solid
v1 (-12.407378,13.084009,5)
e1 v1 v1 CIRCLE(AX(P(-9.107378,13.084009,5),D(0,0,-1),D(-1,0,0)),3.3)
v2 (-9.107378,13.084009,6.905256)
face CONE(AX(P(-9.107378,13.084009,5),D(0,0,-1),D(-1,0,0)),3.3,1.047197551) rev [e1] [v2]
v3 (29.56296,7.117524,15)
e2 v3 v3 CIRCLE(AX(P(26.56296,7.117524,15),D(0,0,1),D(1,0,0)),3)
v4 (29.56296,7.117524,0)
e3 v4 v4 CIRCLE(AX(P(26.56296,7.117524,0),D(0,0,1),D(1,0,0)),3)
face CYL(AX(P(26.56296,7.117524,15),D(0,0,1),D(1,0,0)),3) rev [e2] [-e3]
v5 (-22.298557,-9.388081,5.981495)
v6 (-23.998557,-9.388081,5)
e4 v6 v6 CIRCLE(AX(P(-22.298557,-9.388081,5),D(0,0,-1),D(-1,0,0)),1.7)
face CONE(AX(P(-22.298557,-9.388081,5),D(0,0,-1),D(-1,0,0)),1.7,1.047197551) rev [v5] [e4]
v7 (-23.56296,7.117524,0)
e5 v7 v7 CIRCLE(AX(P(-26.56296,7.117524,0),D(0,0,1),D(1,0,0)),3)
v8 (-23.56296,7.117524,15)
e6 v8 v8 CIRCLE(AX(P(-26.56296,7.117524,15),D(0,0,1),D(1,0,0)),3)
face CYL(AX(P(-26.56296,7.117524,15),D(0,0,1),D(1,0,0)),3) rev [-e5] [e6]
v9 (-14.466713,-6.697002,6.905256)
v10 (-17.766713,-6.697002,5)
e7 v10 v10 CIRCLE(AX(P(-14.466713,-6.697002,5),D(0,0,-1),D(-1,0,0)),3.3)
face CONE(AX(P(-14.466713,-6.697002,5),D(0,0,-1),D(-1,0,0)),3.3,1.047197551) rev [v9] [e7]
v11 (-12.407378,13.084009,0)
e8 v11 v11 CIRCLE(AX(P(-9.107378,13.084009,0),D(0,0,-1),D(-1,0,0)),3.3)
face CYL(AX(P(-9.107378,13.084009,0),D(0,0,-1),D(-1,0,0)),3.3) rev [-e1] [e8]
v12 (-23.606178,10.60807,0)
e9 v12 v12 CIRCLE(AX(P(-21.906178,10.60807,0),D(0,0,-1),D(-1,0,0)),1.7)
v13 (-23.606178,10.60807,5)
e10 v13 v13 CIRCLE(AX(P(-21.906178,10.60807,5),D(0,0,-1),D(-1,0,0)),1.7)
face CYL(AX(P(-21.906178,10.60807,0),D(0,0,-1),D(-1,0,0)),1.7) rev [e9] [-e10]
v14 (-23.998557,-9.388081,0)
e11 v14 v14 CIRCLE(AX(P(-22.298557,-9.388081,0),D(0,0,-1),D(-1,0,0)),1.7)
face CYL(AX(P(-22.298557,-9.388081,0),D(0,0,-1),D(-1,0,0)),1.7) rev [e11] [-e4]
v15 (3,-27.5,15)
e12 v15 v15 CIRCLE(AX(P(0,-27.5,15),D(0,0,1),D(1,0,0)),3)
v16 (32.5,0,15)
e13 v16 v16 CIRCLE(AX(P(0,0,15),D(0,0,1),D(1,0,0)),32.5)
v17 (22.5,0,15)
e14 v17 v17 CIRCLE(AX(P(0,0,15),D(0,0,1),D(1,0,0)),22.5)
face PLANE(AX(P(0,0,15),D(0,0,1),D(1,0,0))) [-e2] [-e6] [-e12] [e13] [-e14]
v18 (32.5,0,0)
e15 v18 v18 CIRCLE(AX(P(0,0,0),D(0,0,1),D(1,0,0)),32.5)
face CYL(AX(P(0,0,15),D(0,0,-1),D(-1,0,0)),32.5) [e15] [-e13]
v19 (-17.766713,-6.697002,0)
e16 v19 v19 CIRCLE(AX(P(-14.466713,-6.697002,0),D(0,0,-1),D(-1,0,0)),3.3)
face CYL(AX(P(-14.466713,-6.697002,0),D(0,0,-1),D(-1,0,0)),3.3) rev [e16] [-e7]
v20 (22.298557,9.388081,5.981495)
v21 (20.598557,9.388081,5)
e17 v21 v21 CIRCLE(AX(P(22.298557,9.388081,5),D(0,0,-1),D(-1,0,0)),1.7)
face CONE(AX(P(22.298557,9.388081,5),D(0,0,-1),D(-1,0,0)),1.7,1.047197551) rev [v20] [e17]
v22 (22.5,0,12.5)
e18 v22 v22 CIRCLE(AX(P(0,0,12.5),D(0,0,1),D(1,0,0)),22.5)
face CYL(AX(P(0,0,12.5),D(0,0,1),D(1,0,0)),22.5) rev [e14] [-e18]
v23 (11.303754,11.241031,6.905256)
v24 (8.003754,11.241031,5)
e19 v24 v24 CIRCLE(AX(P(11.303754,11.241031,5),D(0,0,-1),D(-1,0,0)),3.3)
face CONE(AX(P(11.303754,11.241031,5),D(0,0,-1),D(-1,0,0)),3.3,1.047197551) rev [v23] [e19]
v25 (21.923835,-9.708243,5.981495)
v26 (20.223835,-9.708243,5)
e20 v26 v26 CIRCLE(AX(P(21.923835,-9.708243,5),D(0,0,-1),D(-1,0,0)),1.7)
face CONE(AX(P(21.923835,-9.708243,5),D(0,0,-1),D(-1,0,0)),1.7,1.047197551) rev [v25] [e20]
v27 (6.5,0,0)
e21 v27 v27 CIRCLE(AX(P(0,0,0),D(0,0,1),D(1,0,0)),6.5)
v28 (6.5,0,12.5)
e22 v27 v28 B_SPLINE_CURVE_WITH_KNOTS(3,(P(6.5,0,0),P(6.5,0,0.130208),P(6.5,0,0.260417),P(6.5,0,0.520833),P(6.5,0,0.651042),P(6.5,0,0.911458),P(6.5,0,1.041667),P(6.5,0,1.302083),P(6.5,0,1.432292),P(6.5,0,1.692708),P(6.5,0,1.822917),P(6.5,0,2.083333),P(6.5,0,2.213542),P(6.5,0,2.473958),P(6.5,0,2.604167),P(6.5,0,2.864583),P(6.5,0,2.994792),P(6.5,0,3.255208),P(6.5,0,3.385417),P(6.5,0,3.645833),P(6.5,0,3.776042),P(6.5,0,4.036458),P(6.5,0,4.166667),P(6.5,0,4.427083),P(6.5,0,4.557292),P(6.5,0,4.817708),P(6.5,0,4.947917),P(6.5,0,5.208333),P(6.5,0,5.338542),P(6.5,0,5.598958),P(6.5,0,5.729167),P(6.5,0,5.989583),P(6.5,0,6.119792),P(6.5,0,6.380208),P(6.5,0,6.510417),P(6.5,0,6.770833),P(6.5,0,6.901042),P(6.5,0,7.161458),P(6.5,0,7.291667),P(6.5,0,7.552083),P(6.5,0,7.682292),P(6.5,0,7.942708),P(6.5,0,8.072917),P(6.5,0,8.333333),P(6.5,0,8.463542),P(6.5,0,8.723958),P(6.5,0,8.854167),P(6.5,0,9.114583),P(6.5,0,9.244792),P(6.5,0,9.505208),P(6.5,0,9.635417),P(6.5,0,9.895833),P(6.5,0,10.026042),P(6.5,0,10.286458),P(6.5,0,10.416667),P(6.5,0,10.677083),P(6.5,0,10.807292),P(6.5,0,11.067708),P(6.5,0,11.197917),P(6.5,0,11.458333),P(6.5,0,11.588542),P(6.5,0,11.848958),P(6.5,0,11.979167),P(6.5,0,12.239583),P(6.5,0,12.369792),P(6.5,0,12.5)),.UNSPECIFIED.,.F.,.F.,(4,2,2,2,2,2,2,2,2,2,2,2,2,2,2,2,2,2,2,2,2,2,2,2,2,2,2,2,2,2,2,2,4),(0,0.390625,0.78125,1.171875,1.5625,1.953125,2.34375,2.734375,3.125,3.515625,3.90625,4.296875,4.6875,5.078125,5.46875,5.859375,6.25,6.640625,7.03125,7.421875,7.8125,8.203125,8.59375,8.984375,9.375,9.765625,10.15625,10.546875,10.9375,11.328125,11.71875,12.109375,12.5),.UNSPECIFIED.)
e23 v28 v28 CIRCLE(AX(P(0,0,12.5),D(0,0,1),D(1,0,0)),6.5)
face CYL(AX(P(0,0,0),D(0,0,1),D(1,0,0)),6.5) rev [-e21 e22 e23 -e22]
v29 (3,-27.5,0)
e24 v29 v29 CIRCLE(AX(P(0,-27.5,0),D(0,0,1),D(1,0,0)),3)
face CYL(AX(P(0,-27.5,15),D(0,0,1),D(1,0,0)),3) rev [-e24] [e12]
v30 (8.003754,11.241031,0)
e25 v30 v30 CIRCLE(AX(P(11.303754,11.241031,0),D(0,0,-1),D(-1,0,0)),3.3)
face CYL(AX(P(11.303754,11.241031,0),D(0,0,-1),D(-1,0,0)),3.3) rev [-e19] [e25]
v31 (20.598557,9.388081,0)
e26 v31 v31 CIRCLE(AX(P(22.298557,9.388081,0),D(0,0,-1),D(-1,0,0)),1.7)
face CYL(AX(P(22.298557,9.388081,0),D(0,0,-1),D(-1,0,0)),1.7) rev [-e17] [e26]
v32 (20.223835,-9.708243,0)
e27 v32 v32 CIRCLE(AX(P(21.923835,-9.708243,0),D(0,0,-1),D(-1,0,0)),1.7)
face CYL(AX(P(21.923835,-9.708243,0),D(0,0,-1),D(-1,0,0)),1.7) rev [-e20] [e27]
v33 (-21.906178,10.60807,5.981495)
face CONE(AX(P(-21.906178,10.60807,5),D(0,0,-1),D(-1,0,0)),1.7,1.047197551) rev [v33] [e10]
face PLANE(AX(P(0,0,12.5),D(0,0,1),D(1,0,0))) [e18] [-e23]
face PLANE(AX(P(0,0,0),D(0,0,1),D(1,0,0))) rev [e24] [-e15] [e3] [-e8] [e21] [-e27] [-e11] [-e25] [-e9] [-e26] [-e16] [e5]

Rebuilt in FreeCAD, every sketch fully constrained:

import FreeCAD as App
import Part
import Sketcher

doc = App.newDocument("Part")
body = doc.addObject("PartDesign::Body", "Body")

# Sketch on XY plane
sketch1 = body.newObject("Sketcher::SketchObject", "Sketch")
sketch1.AttachmentSupport = (doc.getObject("XY_Plane"), [""])
sketch1.MapMode = "FlatFace"
sketch1.addGeometry(Part.Circle(App.Vector(0, 0, 0), App.Vector(0, 0, 1), 32), False)
sketch1.addConstraint(Sketcher.Constraint("Coincident", 0, 3, -1, 1))
sketch1.addConstraint(Sketcher.Constraint("Diameter", 0, 65.0))
pad1 = body.newObject("PartDesign::Pad", "Pad")
pad1.Profile = sketch1
pad1.Length = 15

# Sketch on XY plane
sketch2 = body.newObject("Sketcher::SketchObject", "Sketch001")
sketch2.AttachmentSupport = (doc.getObject("XY_Plane"), [""])
sketch2.MapMode = "FlatFace"
sketch2.AttachmentOffset = App.Placement(App.Vector(0, 0, 15), App.Rotation())
sketch2.addGeometry(Part.Circle(App.Vector(0, 0, 0), App.Vector(0, 0, 1), 22), False)
sketch2.addConstraint(Sketcher.Constraint("Coincident", 0, 3, -1, 1))
sketch2.addConstraint(Sketcher.Constraint("Diameter", 0, 45.0))
pocket1 = body.newObject("PartDesign::Pocket", "Pocket")
pocket1.Profile = sketch2
pocket1.Length = 2.5

# Sketch on XY plane
sketch3 = body.newObject("Sketcher::SketchObject", "Sketch002")
sketch3.AttachmentSupport = (doc.getObject("XY_Plane"), [""])
sketch3.MapMode = "FlatFace"
sketch3.AttachmentOffset = App.Placement(App.Vector(0, 0, 12.5), App.Rotation())
sketch3.addGeometry(Part.Circle(App.Vector(0, 0, 0), App.Vector(0, 0, 1), 6), False)
sketch3.addConstraint(Sketcher.Constraint("Coincident", 0, 3, -1, 1))
sketch3.addConstraint(Sketcher.Constraint("Diameter", 0, 13.0))
pocket2 = body.newObject("PartDesign::Pocket", "Pocket001")
pocket2.Profile = sketch3
pocket2.Type = "ThroughAll"

# Sketch on XY plane
sketch4 = body.newObject("Sketcher::SketchObject", "Sketch003")
sketch4.AttachmentSupport = (doc.getObject("XY_Plane"), [""])
sketch4.MapMode = "FlatFace"
sketch4.AttachmentOffset = App.Placement(App.Vector(0, 0, 15), App.Rotation())
sketch4.addGeometry(Part.Circle(App.Vector(0, -27.5, 0), App.Vector(0, 0, 1), 3), False)
sketch4.addGeometry(Part.Circle(App.Vector(-26.6, 7.1, 0), App.Vector(0, 0, 1), 3), False)
sketch4.addGeometry(Part.Circle(App.Vector(26.6, 7.1, 0), App.Vector(0, 0, 1), 3), False)
sketch4.addConstraint(Sketcher.Constraint("Equal", 0, 1))
sketch4.addConstraint(Sketcher.Constraint("Equal", 1, 2))
sketch4.addConstraint(Sketcher.Constraint("Symmetric", 1, 3, 2, 3, -2))
sketch4.addConstraint(Sketcher.Constraint("PointOnObject", 0, 3, -2))
sketch4.addConstraint(Sketcher.Constraint("Diameter", 0, 6.0))
sketch4.addConstraint(Sketcher.Constraint("DistanceY", 0, 3, -1, 1, 27.5))
sketch4.addConstraint(Sketcher.Constraint("DistanceX", 1, 3, -1, 1, 26.56296))
sketch4.addConstraint(Sketcher.Constraint("DistanceY", -1, 1, 1, 3, 7.117524))
doc.recompute()
hole = body.newObject("PartDesign::Hole", "Hole")
hole.Profile = sketch4
hole.ThreadType = "None"
hole.Diameter = 6
hole.DepthType = "ThroughAll"

# Sketch on XY plane
sketch5 = body.newObject("Sketcher::SketchObject", "Sketch004")
sketch5.AttachmentSupport = (doc.getObject("XY_Plane"), [""])
sketch5.MapMode = "FlatFace"
sketch5.addGeometry(Part.Circle(App.Vector(11.3, 11.2, 0), App.Vector(0, 0, 1), 3.3), False)
sketch5.addGeometry(Part.Circle(App.Vector(-9.1, 13.1, 0), App.Vector(0, 0, 1), 3.3), False)
sketch5.addGeometry(Part.Circle(App.Vector(-14.5, -6.7, 0), App.Vector(0, 0, 1), 3.3), False)
sketch5.addConstraint(Sketcher.Constraint("Equal", 0, 1))
sketch5.addConstraint(Sketcher.Constraint("Equal", 1, 2))
sketch5.addConstraint(Sketcher.Constraint("Diameter", 0, 6.6))
sketch5.addConstraint(Sketcher.Constraint("DistanceY", -1, 1, 0, 3, 11.241031))
sketch5.addConstraint(Sketcher.Constraint("DistanceX", 1, 3, -1, 1, 9.107378))
sketch5.addConstraint(Sketcher.Constraint("DistanceY", -1, 1, 1, 3, 13.084009))
sketch5.addConstraint(Sketcher.Constraint("DistanceY", 2, 3, 1, 3, 19.781011))
sketch5.addConstraint(Sketcher.Constraint("DistanceX", -1, 1, 0, 3, 11.303754))
sketch5.addConstraint(Sketcher.Constraint("DistanceX", 2, 3, -1, 1, 14.466713))
doc.recompute()
hole2 = body.newObject("PartDesign::Hole", "Hole001")
hole2.Profile = sketch5
hole2.ThreadType = "None"
hole2.Diameter = 6.6
hole2.DepthType = "Dimension"
hole2.Depth = 5
hole2.DrillPoint = "Angled"
hole2.DrillPointAngle = 120
hole2.Reversed = True

# Sketch on XY plane
sketch6 = body.newObject("Sketcher::SketchObject", "Sketch005")
sketch6.AttachmentSupport = (doc.getObject("XY_Plane"), [""])
sketch6.MapMode = "FlatFace"
sketch6.addGeometry(Part.Circle(App.Vector(-22.3, -9.4, 0), App.Vector(0, 0, 1), 1.7), False)
sketch6.addGeometry(Part.Circle(App.Vector(-21.9, 10.6, 0), App.Vector(0, 0, 1), 1.7), False)
sketch6.addConstraint(Sketcher.Constraint("Equal", 0, 1))
sketch6.addConstraint(Sketcher.Constraint("Diameter", 0, 3.4))
sketch6.addConstraint(Sketcher.Constraint("DistanceY", 0, 3, -1, 1, 9.388081))
sketch6.addConstraint(Sketcher.Constraint("DistanceY", -1, 1, 1, 3, 10.60807))
sketch6.addConstraint(Sketcher.Constraint("DistanceX", 0, 3, 1, 3, 0.392379))
sketch6.addConstraint(Sketcher.Constraint("DistanceX", 0, 3, -1, 1, 22.298557))
doc.recompute()
hole3 = body.newObject("PartDesign::Hole", "Hole002")
hole3.Profile = sketch6
hole3.ThreadType = "None"
hole3.Diameter = 3.4
hole3.DepthType = "Dimension"
hole3.Depth = 5
hole3.DrillPoint = "Angled"
hole3.DrillPointAngle = 120
hole3.Reversed = True

# Sketch on XY plane
sketch7 = body.newObject("Sketcher::SketchObject", "Sketch006")
sketch7.AttachmentSupport = (doc.getObject("XY_Plane"), [""])
sketch7.MapMode = "FlatFace"
sketch7.addGeometry(Part.Circle(App.Vector(21.9, -9.7, 0), App.Vector(0, 0, 1), 1.7), False)
sketch7.addGeometry(Part.Circle(App.Vector(22.3, 9.4, 0), App.Vector(0, 0, 1), 1.7), False)
sketch7.addConstraint(Sketcher.Constraint("Equal", 0, 1))
sketch7.addConstraint(Sketcher.Constraint("Diameter", 0, 3.4))
sketch7.addConstraint(Sketcher.Constraint("DistanceY", -1, 1, 1, 3, 9.388081))
sketch7.addConstraint(Sketcher.Constraint("DistanceX", 0, 3, 1, 3, 0.374722))
sketch7.addConstraint(Sketcher.Constraint("DistanceX", -1, 1, 0, 3, 21.923835))
sketch7.addConstraint(Sketcher.Constraint("DistanceY", 0, 3, -1, 1, 9.708243))
doc.recompute()
hole4 = body.newObject("PartDesign::Hole", "Hole003")
hole4.Profile = sketch7
hole4.ThreadType = "None"
hole4.Diameter = 3.4
hole4.DepthType = "Dimension"
hole4.Depth = 5
hole4.DrillPoint = "Angled"
hole4.DrillPointAngle = 120
hole4.Reversed = True

doc.recompute()
